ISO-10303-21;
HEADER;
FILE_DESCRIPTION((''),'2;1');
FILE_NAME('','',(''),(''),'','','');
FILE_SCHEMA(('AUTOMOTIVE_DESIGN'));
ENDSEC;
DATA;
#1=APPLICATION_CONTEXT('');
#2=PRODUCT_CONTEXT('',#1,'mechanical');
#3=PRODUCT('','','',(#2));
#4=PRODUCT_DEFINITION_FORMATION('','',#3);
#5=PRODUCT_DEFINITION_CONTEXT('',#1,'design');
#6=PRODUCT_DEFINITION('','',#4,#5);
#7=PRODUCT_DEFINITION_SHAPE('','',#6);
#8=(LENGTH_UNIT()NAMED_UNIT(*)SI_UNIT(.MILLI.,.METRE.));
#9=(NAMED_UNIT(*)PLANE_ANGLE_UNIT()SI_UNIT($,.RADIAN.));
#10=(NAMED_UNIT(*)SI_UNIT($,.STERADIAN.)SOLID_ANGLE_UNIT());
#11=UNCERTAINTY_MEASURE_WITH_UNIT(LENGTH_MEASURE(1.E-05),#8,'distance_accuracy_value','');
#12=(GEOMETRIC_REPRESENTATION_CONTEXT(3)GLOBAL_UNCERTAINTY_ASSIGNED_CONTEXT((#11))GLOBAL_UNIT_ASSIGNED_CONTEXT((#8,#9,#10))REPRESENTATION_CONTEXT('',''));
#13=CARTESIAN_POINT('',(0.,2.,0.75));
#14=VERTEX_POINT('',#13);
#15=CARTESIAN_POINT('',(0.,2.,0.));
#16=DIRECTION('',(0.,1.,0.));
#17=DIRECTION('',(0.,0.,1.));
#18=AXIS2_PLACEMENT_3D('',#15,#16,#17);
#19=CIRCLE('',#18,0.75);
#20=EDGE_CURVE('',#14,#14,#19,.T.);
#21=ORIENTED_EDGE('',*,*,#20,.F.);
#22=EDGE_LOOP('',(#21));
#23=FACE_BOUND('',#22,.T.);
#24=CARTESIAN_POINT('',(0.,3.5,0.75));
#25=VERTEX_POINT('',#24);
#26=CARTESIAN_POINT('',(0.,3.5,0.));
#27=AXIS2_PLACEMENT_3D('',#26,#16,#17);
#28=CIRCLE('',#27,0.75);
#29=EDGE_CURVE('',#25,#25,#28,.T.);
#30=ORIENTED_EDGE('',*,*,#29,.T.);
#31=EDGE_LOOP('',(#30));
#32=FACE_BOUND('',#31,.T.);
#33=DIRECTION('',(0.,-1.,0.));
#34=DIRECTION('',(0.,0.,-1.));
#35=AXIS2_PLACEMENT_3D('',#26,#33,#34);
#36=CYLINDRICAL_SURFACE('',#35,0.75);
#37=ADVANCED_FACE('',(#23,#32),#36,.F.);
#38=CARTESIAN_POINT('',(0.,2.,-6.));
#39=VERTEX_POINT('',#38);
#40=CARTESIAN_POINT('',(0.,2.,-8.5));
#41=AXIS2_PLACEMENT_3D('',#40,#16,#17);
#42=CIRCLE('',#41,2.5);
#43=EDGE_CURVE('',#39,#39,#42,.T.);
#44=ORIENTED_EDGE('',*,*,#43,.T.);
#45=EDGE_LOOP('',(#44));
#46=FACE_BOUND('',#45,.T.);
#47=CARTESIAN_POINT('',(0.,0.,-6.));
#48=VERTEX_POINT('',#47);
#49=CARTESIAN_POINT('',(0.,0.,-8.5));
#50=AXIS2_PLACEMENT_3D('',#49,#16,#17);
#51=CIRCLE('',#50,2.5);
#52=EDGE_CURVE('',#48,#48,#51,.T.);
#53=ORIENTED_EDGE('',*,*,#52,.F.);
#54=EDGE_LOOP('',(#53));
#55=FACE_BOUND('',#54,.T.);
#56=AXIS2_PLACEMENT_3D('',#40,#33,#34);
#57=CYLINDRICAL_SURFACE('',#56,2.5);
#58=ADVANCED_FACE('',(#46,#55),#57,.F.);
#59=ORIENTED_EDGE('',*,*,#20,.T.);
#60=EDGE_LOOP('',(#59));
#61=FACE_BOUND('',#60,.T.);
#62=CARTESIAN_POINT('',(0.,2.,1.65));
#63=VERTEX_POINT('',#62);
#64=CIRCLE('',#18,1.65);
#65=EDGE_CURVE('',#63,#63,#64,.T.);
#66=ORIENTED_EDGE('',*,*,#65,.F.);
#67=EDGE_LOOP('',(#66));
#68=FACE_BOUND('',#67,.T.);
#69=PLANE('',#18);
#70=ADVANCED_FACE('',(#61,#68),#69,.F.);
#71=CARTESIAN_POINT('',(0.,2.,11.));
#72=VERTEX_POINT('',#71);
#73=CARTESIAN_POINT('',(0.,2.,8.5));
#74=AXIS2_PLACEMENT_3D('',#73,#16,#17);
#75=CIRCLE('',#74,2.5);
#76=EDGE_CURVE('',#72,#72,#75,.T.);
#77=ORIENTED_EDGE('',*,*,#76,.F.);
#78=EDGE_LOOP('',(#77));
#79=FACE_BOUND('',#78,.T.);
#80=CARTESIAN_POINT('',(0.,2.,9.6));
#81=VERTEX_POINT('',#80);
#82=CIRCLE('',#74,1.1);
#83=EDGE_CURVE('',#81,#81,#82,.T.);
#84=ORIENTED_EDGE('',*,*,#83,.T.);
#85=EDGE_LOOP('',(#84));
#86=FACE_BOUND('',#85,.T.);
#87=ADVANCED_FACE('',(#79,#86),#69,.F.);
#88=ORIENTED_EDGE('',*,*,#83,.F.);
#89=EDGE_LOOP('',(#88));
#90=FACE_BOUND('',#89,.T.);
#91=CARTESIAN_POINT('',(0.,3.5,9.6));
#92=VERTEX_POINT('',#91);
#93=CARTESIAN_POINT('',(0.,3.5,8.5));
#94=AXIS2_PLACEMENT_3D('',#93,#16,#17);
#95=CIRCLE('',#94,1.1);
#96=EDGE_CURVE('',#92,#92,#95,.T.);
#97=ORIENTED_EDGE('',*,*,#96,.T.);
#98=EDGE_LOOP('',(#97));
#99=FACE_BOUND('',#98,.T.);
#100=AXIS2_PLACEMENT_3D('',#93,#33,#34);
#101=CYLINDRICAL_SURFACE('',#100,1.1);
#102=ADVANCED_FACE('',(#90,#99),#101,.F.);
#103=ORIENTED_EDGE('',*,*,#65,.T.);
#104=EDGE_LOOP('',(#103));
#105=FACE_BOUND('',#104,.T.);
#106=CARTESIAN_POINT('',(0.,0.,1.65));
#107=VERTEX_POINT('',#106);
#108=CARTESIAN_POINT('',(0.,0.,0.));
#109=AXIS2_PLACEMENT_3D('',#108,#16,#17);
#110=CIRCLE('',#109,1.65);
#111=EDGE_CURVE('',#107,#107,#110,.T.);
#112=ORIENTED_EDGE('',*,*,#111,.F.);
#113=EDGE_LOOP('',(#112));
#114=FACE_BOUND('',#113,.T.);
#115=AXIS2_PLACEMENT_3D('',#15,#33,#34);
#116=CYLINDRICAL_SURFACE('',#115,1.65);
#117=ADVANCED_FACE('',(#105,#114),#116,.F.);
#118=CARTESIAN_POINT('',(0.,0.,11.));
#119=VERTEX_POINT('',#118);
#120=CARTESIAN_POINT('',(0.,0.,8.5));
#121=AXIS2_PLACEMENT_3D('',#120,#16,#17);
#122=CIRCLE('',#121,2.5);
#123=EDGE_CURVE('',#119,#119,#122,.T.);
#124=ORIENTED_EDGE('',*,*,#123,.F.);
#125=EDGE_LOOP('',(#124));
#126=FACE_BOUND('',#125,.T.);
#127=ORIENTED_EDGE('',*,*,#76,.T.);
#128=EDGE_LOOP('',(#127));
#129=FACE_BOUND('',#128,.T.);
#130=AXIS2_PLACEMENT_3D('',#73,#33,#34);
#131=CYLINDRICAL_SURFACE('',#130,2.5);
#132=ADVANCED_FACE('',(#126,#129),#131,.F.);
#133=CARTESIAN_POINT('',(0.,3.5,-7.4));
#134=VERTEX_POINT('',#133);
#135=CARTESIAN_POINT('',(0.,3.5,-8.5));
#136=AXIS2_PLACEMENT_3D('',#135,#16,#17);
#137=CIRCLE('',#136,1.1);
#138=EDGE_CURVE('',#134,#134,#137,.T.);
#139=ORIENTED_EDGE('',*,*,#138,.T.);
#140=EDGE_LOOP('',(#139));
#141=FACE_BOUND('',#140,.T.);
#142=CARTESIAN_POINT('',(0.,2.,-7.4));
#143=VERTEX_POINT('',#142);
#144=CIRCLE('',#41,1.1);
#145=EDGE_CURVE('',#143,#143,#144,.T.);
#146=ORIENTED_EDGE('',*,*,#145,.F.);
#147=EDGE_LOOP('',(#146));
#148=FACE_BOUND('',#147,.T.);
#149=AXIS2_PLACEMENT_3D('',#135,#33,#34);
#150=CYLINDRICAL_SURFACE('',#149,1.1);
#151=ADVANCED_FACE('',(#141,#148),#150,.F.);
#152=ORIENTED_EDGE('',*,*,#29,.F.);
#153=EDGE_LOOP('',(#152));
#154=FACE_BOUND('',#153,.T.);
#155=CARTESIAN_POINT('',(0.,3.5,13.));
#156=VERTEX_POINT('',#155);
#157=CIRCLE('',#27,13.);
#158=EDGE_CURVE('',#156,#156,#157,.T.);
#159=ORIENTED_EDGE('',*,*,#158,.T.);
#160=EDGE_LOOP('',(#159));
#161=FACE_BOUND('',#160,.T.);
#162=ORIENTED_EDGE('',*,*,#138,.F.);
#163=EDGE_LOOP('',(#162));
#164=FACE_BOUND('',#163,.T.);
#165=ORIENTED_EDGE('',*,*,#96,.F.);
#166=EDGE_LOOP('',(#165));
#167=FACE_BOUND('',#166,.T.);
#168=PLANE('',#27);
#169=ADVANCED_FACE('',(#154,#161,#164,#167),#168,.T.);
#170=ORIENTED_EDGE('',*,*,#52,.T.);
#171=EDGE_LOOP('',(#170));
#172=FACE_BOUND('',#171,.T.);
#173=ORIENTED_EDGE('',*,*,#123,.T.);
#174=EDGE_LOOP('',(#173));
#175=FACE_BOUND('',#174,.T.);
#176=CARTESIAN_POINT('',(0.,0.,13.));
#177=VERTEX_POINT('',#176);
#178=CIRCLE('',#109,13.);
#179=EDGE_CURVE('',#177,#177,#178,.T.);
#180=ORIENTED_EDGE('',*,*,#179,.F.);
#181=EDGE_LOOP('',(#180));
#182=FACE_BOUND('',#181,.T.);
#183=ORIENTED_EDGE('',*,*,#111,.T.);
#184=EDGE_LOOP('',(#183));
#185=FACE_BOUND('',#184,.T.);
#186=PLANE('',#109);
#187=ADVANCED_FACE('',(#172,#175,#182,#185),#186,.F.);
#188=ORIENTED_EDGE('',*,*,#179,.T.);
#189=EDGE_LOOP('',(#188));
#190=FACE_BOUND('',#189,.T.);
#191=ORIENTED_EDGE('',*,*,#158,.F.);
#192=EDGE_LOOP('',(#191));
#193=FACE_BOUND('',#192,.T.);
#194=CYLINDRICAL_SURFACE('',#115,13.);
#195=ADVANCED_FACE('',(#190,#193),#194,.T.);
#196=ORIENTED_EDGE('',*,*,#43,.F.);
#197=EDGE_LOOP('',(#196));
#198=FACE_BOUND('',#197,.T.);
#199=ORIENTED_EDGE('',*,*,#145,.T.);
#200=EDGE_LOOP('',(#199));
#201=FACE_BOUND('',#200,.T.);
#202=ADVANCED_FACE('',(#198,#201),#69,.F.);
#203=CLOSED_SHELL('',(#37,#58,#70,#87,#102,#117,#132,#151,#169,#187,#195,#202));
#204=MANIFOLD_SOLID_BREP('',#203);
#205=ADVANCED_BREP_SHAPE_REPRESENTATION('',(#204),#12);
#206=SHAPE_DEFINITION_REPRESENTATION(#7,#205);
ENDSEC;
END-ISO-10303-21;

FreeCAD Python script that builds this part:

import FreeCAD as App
import Part
import Sketcher
Q = App.Units.Quantity

doc = App.newDocument("Part")
body = doc.addObject("PartDesign::Body", "Body")

# Sketch on XZ plane
sketch1 = body.newObject("Sketcher::SketchObject", "Sketch")
sketch1.AttachmentSupport = (doc.getObject("XZ_Plane"), [""])
sketch1.MapMode = "FlatFace"
sketch1.addGeometry([
    Part.Circle(App.Vector(0, 0, 0), App.Vector(0, 0, 1), 13),
    Part.Circle(App.Vector(0, -8.5, 0), App.Vector(0, 0, 1), 2.5),
    Part.Circle(App.Vector(0, 0, 0), App.Vector(0, 0, 1), 1.6),
    Part.Circle(App.Vector(0, 8.5, 0), App.Vector(0, 0, 1), 2.5),
], False)
sketch1.addConstraint([
    Sketcher.Constraint("Coincident", 0, 3, -1, 1),
    Sketcher.Constraint("Coincident", 2, 3, -1, 1),
    Sketcher.Constraint("Equal", 1, 3),
    Sketcher.Constraint("Symmetric", 1, 3, 3, 3, -1, 1),
    Sketcher.Constraint("PointOnObject", 1, 3, -2),
    Sketcher.Constraint("Diameter", 0, Q("26 mm")),
    Sketcher.Constraint("Diameter", 1, Q("5 mm")),
    Sketcher.Constraint("Diameter", 2, Q("3.3 mm")),
    Sketcher.Constraint("DistanceY", 1, 3, 3, 3, Q("17 mm")),
])
pad1 = body.newObject("PartDesign::Pad", "Pad")
pad1.Profile = sketch1
pad1.Length = 2
pad1.Reversed = True

# Sketch on XZ plane
sketch2 = body.newObject("Sketcher::SketchObject", "Sketch001")
sketch2.AttachmentSupport = (doc.getObject("XZ_Plane"), [""])
sketch2.MapMode = "FlatFace"
sketch2.AttachmentOffset = App.Placement(App.Vector(0, 0, -2), App.Rotation())
sketch2.addGeometry([
    Part.Circle(App.Vector(0, 0, 0), App.Vector(0, 0, 1), 13),
    Part.Circle(App.Vector(0, -8.5, 0), App.Vector(0, 0, 1), 1.1),
    Part.Circle(App.Vector(0, 0, 0), App.Vector(0, 0, 1), 0.8),
    Part.Circle(App.Vector(0, 8.5, 0), App.Vector(0, 0, 1), 1.1),
], False)
sketch2.addConstraint([
    Sketcher.Constraint("Coincident", 0, 3, -1, 1),
    Sketcher.Constraint("Coincident", 2, 3, -1, 1),
    Sketcher.Constraint("Equal", 1, 3),
    Sketcher.Constraint("Symmetric", 1, 3, 3, 3, -1, 1),
    Sketcher.Constraint("PointOnObject", 1, 3, -2),
    Sketcher.Constraint("Diameter", 0, Q("26 mm")),
    Sketcher.Constraint("Diameter", 1, Q("2.2 mm")),
    Sketcher.Constraint("Diameter", 2, Q("1.5 mm")),
    Sketcher.Constraint("DistanceY", 1, 3, 3, 3, Q("17 mm")),
])
pad2 = body.newObject("PartDesign::Pad", "Pad001")
pad2.Profile = sketch2
pad2.Length = 1.5
pad2.Reversed = True

doc.recompute()
